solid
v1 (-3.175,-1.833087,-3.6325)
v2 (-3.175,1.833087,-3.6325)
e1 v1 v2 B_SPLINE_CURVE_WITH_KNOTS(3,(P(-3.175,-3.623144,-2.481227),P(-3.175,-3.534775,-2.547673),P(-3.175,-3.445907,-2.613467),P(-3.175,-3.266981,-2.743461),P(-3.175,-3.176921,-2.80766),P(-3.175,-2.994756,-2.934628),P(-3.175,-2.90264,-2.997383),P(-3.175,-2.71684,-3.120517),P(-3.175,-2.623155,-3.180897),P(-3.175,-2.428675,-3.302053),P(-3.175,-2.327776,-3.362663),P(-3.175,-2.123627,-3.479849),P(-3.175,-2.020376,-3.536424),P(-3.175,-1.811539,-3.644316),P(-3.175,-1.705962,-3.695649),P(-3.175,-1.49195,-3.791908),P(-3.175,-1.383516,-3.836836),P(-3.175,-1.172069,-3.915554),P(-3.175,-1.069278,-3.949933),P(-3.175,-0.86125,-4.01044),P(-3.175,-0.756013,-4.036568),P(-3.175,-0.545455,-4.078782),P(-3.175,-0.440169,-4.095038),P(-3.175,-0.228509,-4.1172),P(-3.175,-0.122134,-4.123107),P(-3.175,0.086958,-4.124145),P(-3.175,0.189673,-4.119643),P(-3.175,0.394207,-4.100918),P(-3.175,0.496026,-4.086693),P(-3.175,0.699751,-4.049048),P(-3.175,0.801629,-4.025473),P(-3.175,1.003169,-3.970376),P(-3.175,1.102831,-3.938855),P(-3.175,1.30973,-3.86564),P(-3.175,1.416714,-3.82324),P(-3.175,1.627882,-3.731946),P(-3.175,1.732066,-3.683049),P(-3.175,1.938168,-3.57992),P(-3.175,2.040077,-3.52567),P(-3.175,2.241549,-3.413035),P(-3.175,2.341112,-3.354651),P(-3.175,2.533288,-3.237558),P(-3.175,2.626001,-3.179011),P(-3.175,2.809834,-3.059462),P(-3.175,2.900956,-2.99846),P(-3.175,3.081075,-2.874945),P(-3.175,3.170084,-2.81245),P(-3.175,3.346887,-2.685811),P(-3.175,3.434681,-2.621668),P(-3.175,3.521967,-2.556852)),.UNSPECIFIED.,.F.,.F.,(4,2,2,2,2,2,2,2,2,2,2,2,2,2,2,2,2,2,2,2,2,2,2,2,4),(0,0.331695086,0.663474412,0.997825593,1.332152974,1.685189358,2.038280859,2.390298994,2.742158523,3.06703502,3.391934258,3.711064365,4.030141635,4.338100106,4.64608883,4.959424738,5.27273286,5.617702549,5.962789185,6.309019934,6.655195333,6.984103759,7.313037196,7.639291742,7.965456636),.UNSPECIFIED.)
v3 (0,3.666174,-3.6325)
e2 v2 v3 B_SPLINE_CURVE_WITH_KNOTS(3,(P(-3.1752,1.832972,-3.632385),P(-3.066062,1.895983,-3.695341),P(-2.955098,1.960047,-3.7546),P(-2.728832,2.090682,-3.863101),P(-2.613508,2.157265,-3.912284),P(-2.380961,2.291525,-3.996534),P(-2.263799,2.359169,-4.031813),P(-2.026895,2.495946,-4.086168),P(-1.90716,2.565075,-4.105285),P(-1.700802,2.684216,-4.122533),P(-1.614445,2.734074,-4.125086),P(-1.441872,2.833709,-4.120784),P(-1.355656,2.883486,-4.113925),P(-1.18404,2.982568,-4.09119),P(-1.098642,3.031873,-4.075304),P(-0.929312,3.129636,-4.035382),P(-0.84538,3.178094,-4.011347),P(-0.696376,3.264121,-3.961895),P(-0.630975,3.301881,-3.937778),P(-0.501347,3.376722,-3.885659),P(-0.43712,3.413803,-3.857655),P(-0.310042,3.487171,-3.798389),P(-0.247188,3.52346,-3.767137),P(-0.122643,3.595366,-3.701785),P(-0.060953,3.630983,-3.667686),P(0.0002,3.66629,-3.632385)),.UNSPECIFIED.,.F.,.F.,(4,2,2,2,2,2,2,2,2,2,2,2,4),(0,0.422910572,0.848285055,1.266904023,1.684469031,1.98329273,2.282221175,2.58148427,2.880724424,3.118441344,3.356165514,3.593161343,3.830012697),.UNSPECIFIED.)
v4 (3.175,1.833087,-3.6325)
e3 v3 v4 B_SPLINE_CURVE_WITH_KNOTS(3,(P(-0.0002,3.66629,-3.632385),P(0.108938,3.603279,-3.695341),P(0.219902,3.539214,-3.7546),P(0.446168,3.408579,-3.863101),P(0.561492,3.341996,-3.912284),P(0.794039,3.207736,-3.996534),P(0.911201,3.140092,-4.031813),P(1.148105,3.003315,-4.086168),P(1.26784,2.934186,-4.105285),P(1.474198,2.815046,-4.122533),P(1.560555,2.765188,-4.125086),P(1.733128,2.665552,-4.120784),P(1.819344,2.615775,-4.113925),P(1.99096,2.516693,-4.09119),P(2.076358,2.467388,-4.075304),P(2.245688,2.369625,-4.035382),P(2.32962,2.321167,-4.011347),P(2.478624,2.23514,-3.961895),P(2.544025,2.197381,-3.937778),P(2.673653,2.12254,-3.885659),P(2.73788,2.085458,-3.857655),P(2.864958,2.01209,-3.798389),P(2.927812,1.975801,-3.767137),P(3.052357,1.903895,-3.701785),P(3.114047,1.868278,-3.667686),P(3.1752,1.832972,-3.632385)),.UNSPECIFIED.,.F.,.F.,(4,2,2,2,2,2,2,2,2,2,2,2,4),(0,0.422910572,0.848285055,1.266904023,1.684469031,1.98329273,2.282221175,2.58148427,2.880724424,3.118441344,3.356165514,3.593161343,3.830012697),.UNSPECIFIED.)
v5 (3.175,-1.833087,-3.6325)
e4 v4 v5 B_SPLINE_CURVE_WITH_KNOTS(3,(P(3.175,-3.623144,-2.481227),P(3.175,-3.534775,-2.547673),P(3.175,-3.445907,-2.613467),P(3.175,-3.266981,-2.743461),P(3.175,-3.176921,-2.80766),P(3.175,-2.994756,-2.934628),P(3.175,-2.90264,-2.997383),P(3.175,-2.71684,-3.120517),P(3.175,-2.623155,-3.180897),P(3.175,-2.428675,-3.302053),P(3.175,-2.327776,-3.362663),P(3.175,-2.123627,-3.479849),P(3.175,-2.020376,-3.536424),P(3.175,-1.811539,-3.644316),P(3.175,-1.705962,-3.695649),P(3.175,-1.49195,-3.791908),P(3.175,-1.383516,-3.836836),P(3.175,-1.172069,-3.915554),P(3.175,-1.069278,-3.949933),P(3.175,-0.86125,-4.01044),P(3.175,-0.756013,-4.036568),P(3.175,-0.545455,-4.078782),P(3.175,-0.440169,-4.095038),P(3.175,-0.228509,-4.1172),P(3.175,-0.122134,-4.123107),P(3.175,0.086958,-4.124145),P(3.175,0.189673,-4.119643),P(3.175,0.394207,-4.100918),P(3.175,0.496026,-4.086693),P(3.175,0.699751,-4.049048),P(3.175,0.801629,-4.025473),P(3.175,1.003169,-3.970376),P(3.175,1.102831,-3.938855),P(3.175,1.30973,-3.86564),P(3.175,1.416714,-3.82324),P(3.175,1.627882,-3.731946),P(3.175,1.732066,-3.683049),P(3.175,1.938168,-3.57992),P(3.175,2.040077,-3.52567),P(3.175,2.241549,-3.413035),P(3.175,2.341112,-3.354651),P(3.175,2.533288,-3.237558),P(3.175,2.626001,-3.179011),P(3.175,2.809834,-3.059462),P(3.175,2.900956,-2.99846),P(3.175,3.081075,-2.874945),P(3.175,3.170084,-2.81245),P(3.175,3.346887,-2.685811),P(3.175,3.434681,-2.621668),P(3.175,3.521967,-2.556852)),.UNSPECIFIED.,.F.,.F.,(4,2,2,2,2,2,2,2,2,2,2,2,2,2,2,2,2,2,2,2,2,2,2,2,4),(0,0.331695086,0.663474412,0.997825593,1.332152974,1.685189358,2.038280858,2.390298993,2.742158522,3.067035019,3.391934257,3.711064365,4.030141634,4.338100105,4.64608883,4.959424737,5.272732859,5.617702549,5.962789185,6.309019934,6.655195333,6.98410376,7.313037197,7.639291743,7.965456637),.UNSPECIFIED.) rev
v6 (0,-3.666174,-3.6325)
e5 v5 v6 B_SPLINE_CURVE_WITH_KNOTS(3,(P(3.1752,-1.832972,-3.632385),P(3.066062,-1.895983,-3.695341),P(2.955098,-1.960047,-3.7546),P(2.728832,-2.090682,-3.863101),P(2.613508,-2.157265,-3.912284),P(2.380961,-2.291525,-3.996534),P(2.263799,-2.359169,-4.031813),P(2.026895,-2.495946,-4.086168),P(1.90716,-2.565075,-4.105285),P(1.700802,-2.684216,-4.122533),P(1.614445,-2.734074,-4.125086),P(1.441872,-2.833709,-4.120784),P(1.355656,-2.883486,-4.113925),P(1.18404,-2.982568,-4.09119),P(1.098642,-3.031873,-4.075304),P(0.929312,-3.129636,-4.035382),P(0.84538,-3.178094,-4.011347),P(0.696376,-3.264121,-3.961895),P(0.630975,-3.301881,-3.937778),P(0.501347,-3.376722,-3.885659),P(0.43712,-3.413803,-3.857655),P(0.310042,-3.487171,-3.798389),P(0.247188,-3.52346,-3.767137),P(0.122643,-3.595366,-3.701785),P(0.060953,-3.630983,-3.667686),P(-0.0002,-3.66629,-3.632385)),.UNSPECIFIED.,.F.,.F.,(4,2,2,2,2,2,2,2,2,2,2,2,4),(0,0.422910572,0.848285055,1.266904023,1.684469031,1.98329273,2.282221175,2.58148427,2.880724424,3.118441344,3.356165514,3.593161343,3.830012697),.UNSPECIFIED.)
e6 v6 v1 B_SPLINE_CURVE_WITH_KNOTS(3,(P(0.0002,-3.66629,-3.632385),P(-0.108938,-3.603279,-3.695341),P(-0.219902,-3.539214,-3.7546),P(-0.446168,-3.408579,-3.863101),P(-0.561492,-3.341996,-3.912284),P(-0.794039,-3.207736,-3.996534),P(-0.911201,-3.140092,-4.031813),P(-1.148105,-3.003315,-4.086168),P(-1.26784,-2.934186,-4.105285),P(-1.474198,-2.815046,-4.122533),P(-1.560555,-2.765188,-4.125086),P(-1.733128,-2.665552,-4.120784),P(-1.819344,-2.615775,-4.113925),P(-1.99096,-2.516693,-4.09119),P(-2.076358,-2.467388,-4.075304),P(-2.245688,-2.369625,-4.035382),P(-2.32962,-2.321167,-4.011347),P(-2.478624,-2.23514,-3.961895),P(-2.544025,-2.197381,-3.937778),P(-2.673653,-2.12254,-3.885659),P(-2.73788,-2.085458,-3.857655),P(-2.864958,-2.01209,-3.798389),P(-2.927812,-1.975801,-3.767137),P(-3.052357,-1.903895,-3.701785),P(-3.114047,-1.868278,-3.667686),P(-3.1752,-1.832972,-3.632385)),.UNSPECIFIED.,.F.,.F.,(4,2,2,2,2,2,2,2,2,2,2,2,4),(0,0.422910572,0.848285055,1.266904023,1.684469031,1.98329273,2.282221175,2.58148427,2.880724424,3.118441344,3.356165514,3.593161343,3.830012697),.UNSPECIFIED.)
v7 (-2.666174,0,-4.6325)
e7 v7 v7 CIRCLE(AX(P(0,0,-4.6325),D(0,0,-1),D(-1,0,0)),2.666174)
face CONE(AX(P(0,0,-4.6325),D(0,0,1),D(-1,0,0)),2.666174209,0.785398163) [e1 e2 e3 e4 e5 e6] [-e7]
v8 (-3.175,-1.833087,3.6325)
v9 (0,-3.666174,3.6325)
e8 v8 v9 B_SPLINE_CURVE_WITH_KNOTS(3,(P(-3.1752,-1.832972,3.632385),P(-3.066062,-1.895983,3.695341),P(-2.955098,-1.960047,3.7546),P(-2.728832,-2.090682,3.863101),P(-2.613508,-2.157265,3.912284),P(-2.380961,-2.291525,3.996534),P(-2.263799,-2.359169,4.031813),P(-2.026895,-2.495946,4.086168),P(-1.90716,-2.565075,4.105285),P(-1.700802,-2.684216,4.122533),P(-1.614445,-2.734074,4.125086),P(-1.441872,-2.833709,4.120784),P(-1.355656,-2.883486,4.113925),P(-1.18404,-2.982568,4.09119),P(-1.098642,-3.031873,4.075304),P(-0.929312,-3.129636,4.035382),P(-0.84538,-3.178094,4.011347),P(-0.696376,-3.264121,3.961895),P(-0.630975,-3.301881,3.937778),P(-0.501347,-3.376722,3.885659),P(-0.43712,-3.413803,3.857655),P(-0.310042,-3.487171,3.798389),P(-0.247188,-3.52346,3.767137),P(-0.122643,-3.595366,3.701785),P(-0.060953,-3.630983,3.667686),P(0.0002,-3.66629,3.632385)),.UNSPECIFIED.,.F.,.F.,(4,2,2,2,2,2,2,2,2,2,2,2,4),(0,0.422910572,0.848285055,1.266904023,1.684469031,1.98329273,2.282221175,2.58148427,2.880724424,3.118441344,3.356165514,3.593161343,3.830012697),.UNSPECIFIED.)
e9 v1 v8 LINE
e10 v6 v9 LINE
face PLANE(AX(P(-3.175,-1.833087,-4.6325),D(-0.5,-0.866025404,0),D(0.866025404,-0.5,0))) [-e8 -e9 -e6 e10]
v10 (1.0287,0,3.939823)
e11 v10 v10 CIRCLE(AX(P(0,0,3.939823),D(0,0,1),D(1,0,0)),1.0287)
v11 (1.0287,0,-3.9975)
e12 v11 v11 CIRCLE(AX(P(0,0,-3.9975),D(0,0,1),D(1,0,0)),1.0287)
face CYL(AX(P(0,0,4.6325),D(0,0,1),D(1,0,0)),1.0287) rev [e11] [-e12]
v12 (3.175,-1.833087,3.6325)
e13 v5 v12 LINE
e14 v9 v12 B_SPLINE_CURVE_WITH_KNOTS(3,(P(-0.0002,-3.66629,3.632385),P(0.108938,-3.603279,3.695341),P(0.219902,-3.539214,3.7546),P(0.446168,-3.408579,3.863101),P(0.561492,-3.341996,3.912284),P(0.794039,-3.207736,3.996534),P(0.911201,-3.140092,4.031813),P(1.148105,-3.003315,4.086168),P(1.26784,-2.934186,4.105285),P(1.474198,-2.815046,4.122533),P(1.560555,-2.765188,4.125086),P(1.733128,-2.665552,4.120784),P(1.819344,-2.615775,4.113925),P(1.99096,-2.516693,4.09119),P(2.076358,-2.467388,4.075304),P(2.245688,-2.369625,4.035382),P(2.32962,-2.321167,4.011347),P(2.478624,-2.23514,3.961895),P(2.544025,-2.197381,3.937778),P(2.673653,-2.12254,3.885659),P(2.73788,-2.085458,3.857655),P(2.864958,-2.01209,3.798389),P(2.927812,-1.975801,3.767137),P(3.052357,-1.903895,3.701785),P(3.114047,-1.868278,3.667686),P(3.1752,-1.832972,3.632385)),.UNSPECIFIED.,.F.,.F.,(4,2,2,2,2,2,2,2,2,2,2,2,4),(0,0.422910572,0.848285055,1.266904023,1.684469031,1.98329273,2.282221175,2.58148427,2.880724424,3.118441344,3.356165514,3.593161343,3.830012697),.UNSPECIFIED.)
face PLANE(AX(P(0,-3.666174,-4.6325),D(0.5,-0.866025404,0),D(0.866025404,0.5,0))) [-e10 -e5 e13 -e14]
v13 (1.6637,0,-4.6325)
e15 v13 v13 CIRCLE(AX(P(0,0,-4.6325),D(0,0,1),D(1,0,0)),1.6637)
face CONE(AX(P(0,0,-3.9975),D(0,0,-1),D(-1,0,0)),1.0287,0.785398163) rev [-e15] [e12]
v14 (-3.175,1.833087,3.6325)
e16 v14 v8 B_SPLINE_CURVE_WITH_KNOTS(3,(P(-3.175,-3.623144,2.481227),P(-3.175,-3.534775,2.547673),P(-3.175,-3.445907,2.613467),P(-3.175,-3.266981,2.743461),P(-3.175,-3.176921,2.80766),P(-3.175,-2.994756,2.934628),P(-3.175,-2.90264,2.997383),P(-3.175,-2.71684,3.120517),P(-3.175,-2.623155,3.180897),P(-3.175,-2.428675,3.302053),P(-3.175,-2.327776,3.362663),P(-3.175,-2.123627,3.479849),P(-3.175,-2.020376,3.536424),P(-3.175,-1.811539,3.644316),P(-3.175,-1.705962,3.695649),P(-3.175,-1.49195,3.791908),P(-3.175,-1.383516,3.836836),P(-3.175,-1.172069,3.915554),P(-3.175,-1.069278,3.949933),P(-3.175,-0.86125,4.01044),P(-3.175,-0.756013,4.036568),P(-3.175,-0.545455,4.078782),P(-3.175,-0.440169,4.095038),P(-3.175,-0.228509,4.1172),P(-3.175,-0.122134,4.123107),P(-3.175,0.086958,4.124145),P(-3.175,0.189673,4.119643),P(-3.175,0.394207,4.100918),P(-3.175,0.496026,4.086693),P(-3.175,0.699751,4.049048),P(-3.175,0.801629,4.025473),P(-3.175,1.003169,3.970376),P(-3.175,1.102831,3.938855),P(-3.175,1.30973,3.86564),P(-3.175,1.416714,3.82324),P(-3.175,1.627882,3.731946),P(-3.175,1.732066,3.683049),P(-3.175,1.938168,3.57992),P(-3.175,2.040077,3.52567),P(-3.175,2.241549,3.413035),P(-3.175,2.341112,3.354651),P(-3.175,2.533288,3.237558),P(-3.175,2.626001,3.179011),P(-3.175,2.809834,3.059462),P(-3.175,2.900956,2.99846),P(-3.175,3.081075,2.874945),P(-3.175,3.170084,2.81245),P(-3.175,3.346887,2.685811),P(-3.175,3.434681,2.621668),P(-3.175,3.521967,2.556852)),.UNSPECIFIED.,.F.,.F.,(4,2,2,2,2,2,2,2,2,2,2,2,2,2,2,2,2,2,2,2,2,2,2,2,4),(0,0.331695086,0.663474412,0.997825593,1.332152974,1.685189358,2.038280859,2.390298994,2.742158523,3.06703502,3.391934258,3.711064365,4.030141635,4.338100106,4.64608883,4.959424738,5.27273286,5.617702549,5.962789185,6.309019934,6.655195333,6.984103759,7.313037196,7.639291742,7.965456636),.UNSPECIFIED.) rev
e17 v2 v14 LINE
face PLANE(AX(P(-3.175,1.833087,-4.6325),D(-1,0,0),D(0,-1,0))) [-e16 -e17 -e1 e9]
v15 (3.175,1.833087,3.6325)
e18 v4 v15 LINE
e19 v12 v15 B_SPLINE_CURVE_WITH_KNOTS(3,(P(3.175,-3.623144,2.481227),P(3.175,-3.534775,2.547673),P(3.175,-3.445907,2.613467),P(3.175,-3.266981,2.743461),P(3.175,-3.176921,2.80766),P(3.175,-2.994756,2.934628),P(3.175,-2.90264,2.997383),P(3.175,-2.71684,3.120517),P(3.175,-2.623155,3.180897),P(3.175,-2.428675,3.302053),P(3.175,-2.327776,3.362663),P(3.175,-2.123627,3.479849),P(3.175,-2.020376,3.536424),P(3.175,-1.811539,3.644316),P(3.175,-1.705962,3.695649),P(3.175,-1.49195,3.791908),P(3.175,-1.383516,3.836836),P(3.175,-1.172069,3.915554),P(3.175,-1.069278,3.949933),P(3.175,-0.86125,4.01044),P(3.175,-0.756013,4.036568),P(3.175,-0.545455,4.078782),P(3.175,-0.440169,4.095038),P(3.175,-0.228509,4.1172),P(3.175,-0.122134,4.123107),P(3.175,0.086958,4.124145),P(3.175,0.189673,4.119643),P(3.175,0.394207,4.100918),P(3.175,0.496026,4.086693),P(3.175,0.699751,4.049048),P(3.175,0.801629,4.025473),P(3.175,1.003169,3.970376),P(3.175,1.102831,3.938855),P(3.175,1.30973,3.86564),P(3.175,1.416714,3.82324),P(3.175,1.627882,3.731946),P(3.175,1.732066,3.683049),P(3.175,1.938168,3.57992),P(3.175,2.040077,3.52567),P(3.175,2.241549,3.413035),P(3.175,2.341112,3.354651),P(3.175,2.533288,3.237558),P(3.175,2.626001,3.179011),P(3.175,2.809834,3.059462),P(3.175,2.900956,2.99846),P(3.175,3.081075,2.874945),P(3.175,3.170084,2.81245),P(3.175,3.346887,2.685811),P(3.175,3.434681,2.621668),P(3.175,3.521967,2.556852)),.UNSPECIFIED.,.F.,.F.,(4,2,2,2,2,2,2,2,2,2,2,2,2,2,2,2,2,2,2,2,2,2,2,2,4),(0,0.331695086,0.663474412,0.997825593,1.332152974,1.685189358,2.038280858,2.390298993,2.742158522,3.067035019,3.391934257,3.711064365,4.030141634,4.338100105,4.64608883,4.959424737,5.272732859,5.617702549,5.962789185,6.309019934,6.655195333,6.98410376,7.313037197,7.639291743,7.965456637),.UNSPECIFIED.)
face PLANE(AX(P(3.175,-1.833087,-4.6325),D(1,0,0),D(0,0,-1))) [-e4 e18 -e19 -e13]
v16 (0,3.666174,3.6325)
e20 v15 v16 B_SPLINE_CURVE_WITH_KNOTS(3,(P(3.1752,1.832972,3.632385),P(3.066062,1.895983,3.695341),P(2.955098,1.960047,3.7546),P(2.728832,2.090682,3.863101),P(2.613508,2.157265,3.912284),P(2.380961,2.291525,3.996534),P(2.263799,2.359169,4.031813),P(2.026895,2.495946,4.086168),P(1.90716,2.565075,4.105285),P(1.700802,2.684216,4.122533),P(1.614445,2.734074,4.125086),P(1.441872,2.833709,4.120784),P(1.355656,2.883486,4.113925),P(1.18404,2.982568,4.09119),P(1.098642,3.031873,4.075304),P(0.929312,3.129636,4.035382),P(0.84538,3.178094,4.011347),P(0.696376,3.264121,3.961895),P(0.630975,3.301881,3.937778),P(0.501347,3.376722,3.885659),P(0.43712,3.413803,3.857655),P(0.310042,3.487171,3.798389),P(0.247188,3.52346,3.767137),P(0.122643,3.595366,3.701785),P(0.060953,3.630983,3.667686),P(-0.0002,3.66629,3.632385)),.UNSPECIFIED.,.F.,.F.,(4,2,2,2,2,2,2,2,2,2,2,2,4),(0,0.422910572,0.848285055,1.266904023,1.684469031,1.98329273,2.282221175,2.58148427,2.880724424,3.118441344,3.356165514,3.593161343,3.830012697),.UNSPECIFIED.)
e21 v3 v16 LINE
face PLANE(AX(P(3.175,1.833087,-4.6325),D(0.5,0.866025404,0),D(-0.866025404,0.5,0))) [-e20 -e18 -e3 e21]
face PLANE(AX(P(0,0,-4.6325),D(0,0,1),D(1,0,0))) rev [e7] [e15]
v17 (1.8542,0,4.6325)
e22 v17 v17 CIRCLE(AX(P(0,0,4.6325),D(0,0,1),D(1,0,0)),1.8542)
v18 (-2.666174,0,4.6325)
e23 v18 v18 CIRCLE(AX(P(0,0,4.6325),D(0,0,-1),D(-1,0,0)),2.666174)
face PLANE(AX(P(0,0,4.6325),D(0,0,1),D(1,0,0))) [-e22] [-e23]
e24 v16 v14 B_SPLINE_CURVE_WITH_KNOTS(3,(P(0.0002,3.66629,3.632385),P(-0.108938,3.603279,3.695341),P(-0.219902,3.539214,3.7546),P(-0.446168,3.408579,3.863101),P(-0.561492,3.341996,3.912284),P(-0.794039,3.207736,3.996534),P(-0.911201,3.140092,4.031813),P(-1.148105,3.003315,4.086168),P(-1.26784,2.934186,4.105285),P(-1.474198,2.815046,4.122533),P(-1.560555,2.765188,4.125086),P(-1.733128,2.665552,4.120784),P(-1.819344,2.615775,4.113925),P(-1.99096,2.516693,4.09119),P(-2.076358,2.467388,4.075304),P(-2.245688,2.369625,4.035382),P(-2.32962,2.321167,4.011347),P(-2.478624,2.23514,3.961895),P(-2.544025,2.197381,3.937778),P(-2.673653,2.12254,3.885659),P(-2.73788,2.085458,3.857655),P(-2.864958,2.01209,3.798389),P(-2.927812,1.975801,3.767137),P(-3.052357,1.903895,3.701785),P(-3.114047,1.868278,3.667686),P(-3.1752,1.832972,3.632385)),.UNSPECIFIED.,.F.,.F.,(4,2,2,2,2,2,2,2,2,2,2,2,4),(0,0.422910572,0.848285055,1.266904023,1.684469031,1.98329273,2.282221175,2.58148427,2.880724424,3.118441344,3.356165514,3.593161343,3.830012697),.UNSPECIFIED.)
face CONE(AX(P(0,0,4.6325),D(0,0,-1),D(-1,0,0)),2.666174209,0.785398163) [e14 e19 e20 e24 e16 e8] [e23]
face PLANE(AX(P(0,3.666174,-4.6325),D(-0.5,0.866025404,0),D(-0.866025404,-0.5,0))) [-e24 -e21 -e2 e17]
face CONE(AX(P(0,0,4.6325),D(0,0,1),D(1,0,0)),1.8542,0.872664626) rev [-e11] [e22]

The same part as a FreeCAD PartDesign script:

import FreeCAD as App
import Part
import Sketcher
from FreeCAD import Vector
Q = App.Units.Quantity

doc = App.newDocument("Part")
body = doc.addObject("PartDesign::Body", "Body")

sketch1 = body.newObject("Sketcher::SketchObject", "Sketch")
sketch1.AttachmentSupport = (doc.getObject("XY_Plane"), [""])
sketch1.MapMode = "FlatFace"
sketch1.addGeometry(Part.LineSegment(Vector(3.175, -1.833087, 0), Vector(3.175, 1.833087, 0)), False)
sketch1.addGeometry(Part.LineSegment(Vector(3.175, 1.833087, 0), Vector(0, 3.666174, 0)), False)
sketch1.addGeometry(Part.LineSegment(Vector(0, 3.666174, 0), Vector(-3.175, 1.833087, 0)), False)
sketch1.addGeometry(Part.LineSegment(Vector(-3.175, 1.833087, 0), Vector(-3.175, -1.833087, 0)), False)
sketch1.addGeometry(Part.LineSegment(Vector(-3.175, -1.833087, 0), Vector(0, -3.666174, 0)), False)
sketch1.addGeometry(Part.LineSegment(Vector(0, -3.666174, 0), Vector(3.175, -1.833087, 0)), False)
sketch1.addConstraint(Sketcher.Constraint("Coincident", 0, 2, 1, 1))
sketch1.addConstraint(Sketcher.Constraint("Coincident", 1, 2, 2, 1))
sketch1.addConstraint(Sketcher.Constraint("Coincident", 2, 2, 3, 1))
sketch1.addConstraint(Sketcher.Constraint("Coincident", 3, 2, 4, 1))
sketch1.addConstraint(Sketcher.Constraint("Coincident", 4, 2, 5, 1))
sketch1.addConstraint(Sketcher.Constraint("Coincident", 5, 2, 0, 1))
sketch1.addConstraint(Sketcher.Constraint("Vertical", 0))
sketch1.addConstraint(Sketcher.Constraint("Vertical", 3))
sketch1.addConstraint(Sketcher.Constraint("Symmetric", 0, 2, 3, 2, -1, 1))
sketch1.addConstraint(Sketcher.Constraint("Symmetric", 1, 2, 4, 2, -1, 1))
sketch1.addConstraint(Sketcher.Constraint("PointOnObject", 1, 2, -2))
sketch1.addConstraint(Sketcher.Constraint("Parallel", 2, 5))
sketch1.addConstraint(Sketcher.Constraint("Horizontal", 0, 2, 2, 2))
sketch1.addConstraint(Sketcher.Constraint("Angle", 1, Q("150 deg")))
sketch1.addConstraint(Sketcher.Constraint("DistanceX", 2, 2, 0, 2, Q("6.35 mm")))
sketch1.addConstraint(Sketcher.Constraint("DistanceY", 0, 1, 0, 2, Q("3.666174 mm")))
pad1 = body.newObject("PartDesign::Pad", "Pad")
pad1.Profile = sketch1
pad1.Type = "TwoLengths"
pad1.Length = 4.6325
pad1.Length2 = 4.6325

sketch2 = body.newObject("Sketcher::SketchObject", "Sketch001")
sketch2.AttachmentSupport = (doc.getObject("YZ_Plane"), [""])
sketch2.MapMode = "FlatFace"
sketch2.addGeometry(Part.LineSegment(Vector(2.666174, 4.6325, 0), Vector(3.666174, 3.6325, 0)), False)
sketch2.addGeometry(Part.LineSegment(Vector(3.666174, 3.6325, 0), Vector(3.666174, 4.6325, 0)), False)
sketch2.addGeometry(Part.LineSegment(Vector(3.666174, 4.6325, 0), Vector(2.666174, 4.6325, 0)), False)
sketch2.addConstraint(Sketcher.Constraint("Coincident", 0, 2, 1, 1))
sketch2.addConstraint(Sketcher.Constraint("Coincident", 1, 2, 2, 1))
sketch2.addConstraint(Sketcher.Constraint("Coincident", 2, 2, 0, 1))
sketch2.addConstraint(Sketcher.Constraint("Vertical", 1))
sketch2.addConstraint(Sketcher.Constraint("Horizontal", 2))
sketch2.addConstraint(Sketcher.Constraint("Equal", 2, 1))
sketch2.addConstraint(Sketcher.Constraint("DistanceX", 2, 2, 2, 1, Q("1 mm")))
sketch2.addConstraint(Sketcher.Constraint("DistanceY", -1, 1, 0, 2, Q("3.6325 mm")))
sketch2.addConstraint(Sketcher.Constraint("DistanceX", -1, 1, 0, 2, Q("3.666174 mm")))
groove = body.newObject("PartDesign::Groove", "Groove")
groove.Profile = sketch2
groove.ReferenceAxis = (sketch2, ["V_Axis"])
groove.Angle = 360
doc.recompute()

mirrored = body.newObject("PartDesign::Mirrored", "Mirrored")
mirrored.Originals = [groove]
mirrored.MirrorPlane = (doc.getObject("XY_Plane"), [""])
body.Tip = mirrored

sketch3 = body.newObject("Sketcher::SketchObject", "Sketch002")
sketch3.AttachmentSupport = (doc.getObject("YZ_Plane"), [""])
sketch3.MapMode = "FlatFace"
sketch3.addGeometry(Part.LineSegment(Vector(0, -4.6325, 0), Vector(0, 4.6325, 0)), False)
sketch3.addGeometry(Part.LineSegment(Vector(0, 4.6325, 0), Vector(-1.8542, 4.6325, 0)), False)
sketch3.addGeometry(Part.LineSegment(Vector(-1.8542, 4.6325, 0), Vector(-1.0287, 3.939823, 0)), False)
sketch3.addGeometry(Part.LineSegment(Vector(-1.0287, 3.939823, 0), Vector(-1.0287, -3.9975, 0)), False)
sketch3.addGeometry(Part.LineSegment(Vector(-1.0287, -3.9975, 0), Vector(-1.6637, -4.6325, 0)), False)
sketch3.addGeometry(Part.LineSegment(Vector(-1.6637, -4.6325, 0), Vector(0, -4.6325, 0)), False)
sketch3.addConstraint(Sketcher.Constraint("Coincident", 0, 2, 1, 1))
sketch3.addConstraint(Sketcher.Constraint("Coincident", 1, 2, 2, 1))
sketch3.addConstraint(Sketcher.Constraint("Coincident", 2, 2, 3, 1))
sketch3.addConstraint(Sketcher.Constraint("Coincident", 3, 2, 4, 1))
sketch3.addConstraint(Sketcher.Constraint("Coincident", 4, 2, 5, 1))
sketch3.addConstraint(Sketcher.Constraint("Coincident", 5, 2, 0, 1))
sketch3.addConstraint(Sketcher.Constraint("Vertical", 0))
sketch3.addConstraint(Sketcher.Constraint("Horizontal", 1))
sketch3.addConstraint(Sketcher.Constraint("Vertical", 3))
sketch3.addConstraint(Sketcher.Constraint("Horizontal", 5))
sketch3.addConstraint(Sketcher.Constraint("Symmetric", 0, 2, 5, 2, -1, 1))
sketch3.addConstraint(Sketcher.Constraint("Angle", 2, Q("-40 deg")))
sketch3.addConstraint(Sketcher.Constraint("Angle", 4, Q("-135 deg")))
sketch3.addConstraint(Sketcher.Constraint("DistanceY", 0, 1, 0, 2, Q("9.265 mm")))
sketch3.addConstraint(Sketcher.Constraint("DistanceY", 3, 2, 1, 2, Q("8.63 mm")))
sketch3.addConstraint(Sketcher.Constraint("DistanceX", 1, 2, 1, 1, Q("1.8542 mm")))
sketch3.addConstraint(Sketcher.Constraint("DistanceX", 5, 1, 5, 2, Q("1.6637 mm")))
groove2 = body.newObject("PartDesign::Groove", "Groove001")
groove2.Profile = sketch3
groove2.ReferenceAxis = (sketch3, ["V_Axis"])
groove2.Angle = 360

doc.recompute()
